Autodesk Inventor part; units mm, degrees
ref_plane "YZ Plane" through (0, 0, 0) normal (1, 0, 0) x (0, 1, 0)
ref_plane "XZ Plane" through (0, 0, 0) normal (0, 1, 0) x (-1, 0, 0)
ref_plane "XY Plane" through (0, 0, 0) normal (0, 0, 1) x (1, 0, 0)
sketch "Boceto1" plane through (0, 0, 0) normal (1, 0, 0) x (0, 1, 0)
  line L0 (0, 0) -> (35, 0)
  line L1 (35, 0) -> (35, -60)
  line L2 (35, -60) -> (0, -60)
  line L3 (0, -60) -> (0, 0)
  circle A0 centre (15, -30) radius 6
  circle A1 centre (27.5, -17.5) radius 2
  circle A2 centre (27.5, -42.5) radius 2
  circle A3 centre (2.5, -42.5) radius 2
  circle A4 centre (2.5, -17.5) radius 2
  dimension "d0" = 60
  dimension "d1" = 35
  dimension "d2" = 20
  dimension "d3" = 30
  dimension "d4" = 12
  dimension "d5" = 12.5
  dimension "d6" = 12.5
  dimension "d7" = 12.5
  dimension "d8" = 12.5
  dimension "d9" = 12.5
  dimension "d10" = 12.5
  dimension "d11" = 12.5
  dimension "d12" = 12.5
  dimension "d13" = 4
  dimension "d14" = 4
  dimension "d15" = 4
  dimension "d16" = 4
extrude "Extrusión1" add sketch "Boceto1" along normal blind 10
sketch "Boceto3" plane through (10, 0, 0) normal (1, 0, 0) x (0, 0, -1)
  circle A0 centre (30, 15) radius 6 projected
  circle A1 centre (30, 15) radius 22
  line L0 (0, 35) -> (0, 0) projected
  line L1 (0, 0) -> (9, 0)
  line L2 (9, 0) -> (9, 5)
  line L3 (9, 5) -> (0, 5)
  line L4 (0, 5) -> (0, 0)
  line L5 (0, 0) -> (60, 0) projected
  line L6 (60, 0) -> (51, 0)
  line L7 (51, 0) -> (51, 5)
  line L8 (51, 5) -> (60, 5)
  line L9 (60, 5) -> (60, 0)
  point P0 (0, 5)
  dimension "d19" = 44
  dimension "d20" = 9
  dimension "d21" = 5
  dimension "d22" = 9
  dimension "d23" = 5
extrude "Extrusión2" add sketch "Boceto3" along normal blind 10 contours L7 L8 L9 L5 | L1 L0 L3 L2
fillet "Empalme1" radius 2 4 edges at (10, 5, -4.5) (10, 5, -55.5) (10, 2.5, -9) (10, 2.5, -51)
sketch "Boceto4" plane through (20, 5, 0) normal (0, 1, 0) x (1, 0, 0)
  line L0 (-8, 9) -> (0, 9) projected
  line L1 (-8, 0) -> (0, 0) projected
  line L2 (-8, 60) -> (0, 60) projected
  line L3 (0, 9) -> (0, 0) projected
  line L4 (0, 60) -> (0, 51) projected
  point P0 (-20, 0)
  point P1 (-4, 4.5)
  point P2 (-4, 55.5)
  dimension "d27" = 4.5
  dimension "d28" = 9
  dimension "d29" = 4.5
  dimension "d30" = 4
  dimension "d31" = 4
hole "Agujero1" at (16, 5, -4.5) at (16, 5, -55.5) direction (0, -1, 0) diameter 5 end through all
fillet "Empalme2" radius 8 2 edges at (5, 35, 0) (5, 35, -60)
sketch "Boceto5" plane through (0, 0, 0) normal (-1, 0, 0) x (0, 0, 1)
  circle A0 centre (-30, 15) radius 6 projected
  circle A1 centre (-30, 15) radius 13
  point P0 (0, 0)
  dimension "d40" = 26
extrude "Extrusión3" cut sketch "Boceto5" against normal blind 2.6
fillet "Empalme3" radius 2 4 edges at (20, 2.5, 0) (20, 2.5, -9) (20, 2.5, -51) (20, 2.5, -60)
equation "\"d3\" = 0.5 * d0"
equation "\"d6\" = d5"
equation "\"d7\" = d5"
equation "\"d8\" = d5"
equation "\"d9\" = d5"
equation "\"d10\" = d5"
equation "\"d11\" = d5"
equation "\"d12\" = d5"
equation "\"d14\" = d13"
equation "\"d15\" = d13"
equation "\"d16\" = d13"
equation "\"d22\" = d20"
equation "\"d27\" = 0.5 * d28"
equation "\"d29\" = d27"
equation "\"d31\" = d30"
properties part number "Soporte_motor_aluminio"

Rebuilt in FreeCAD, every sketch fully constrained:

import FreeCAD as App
import Part
import Sketcher
from FreeCAD import Vector


def edges_at(feature, points):
    """Names of the edges that pass closest to the given points."""
    edges = feature.Shape.Edges
    near = lambda p: min(range(len(edges)), key=lambda i: edges[i].distToShape(Part.Vertex(*p))[0])
    return sorted({f"Edge{near(p) + 1}" for p in points})


def add_polygon(sketch, points):
    """Adds a closed chain of lines whose ends are joined by coincident constraints."""
    first, n = sketch.GeometryCount, len(points)
    for a, b in zip(points, points[1:] + points[:1]):
        sketch.addGeometry(Part.LineSegment(App.Vector(*a, 0), App.Vector(*b, 0)), False)
    for i in range(n):
        sketch.addConstraint(Sketcher.Constraint("Coincident", first + i, 2, first + (i + 1) % n, 1))

doc = App.newDocument("Part")
body = doc.addObject("PartDesign::Body", "Body")

sketch1 = body.newObject("Sketcher::SketchObject", "Sketch")
sketch1.AttachmentSupport = (doc.getObject("YZ_Plane"), [""])
sketch1.MapMode = "FlatFace"
add_polygon(sketch1, [(35, 0), (0, 0), (0, -60), (35, -60)])
sketch1.addGeometry(Part.Circle(Vector(2.5, -42.5, 0), Vector(0, 0, 1), 2), False)
sketch1.addGeometry(Part.Circle(Vector(27.5, -42.5, 0), Vector(0, 0, 1), 2), False)
sketch1.addGeometry(Part.Circle(Vector(2.5, -17.5, 0), Vector(0, 0, 1), 2), False)
sketch1.addGeometry(Part.Circle(Vector(15, -30, 0), Vector(0, 0, 1), 6), False)
sketch1.addGeometry(Part.Circle(Vector(27.5, -17.5, 0), Vector(0, 0, 1), 2), False)
sketch1.addConstraint(Sketcher.Constraint("Horizontal", 0))
sketch1.addConstraint(Sketcher.Constraint("Vertical", 1))
sketch1.addConstraint(Sketcher.Constraint("Horizontal", 2))
sketch1.addConstraint(Sketcher.Constraint("Vertical", 3))
sketch1.addConstraint(Sketcher.Constraint("Coincident", 0, 2, -1, 1))
sketch1.addConstraint(Sketcher.Constraint("Equal", 4, 5))
sketch1.addConstraint(Sketcher.Constraint("Equal", 5, 6))
sketch1.addConstraint(Sketcher.Constraint("Equal", 6, 8))
sketch1.addConstraint(Sketcher.Constraint("Horizontal", 4, 3, 5, 3))
sketch1.addConstraint(Sketcher.Constraint("Horizontal", 6, 3, 8, 3))
sketch1.addConstraint(Sketcher.Constraint("Vertical", 4, 3, 6, 3))
sketch1.addConstraint(Sketcher.Constraint("Vertical", 5, 3, 8, 3))
sketch1.addConstraint(Sketcher.Constraint("Diameter", 4, 4.0))
sketch1.addConstraint(Sketcher.Constraint("Diameter", 7, 12.0))
sketch1.addConstraint(Sketcher.Constraint("DistanceX", 0, 2, 0, 1, 35.0))
sketch1.addConstraint(Sketcher.Constraint("DistanceY", 1, 2, 1, 1, 60.0))
sketch1.addConstraint(Sketcher.Constraint("DistanceY", 7, 3, -1, 1, 30.0))
sketch1.addConstraint(Sketcher.Constraint("DistanceX", 7, 3, 2, 2, 20.0))
sketch1.addConstraint(Sketcher.Constraint("DistanceX", 4, 3, 7, 3, 12.5))
sketch1.addConstraint(Sketcher.Constraint("DistanceY", 4, 3, 7, 3, 12.5))
sketch1.addConstraint(Sketcher.Constraint("DistanceX", 7, 3, 5, 3, 12.5))
sketch1.addConstraint(Sketcher.Constraint("DistanceY", 7, 3, 6, 3, 12.5))
pad1 = body.newObject("PartDesign::Pad", "Pad")
pad1.Profile = sketch1
pad1.Length = 10

sketch2 = body.newObject("Sketcher::SketchObject", "Sketch001")
sketch2.AttachmentSupport = (doc.getObject("YZ_Plane"), [""])
sketch2.MapMode = "FlatFace"
sketch2.AttachmentOffset = App.Placement(Vector(0, 0, 10), App.Rotation())
add_polygon(sketch2, [(5, -51), (0, -51), (0, -60), (5, -60)])
add_polygon(sketch2, [(0, 0), (0, -9), (5, -9), (5, 0)])
sketch2.addConstraint(Sketcher.Constraint("Horizontal", 0))
sketch2.addConstraint(Sketcher.Constraint("Vertical", 1))
sketch2.addConstraint(Sketcher.Constraint("Horizontal", 2))
sketch2.addConstraint(Sketcher.Constraint("Vertical", 3))
sketch2.addConstraint(Sketcher.Constraint("Vertical", 4))
sketch2.addConstraint(Sketcher.Constraint("Horizontal", 5))
sketch2.addConstraint(Sketcher.Constraint("Vertical", 6))
sketch2.addConstraint(Sketcher.Constraint("Horizontal", 7))
sketch2.addConstraint(Sketcher.Constraint("Coincident", 7, 2, -1, 1))
sketch2.addConstraint(Sketcher.Constraint("PointOnObject", 0, 2, -2))
sketch2.addConstraint(Sketcher.Constraint("Vertical", 3, 2, 5, 2))
sketch2.addConstraint(Sketcher.Constraint("Equal", 3, 4))
sketch2.addConstraint(Sketcher.Constraint("DistanceX", 0, 2, 0, 1, 5.0))
sketch2.addConstraint(Sketcher.Constraint("DistanceY", 1, 2, 1, 1, 9.0))
sketch2.addConstraint(Sketcher.Constraint("DistanceY", 0, 2, -1, 1, 51.0))
pad2 = body.newObject("PartDesign::Pad", "Pad001")
pad2.Profile = sketch2
pad2.Length = 10
doc.recompute()

fillet = body.newObject("PartDesign::Fillet", "Fillet")
fillet.Base = (pad2, edges_at(pad2, [
    (10, 5, -4.5),
    (10, 5, -55.5),
    (10, 2.5, -9),
    (10, 2.5, -51),
]))
fillet.Radius = 2

sketch3 = body.newObject("Sketcher::SketchObject", "Sketch002")
sketch3.AttachmentSupport = (doc.getObject("XZ_Plane"), [""])
sketch3.MapMode = "FlatFace"
sketch3.AttachmentOffset = App.Placement(Vector(0, 0, -5), App.Rotation())
sketch3.addGeometry(Part.Circle(Vector(16, -4.5, 0), Vector(0, 0, 1), 2.5), False)
sketch3.addGeometry(Part.Circle(Vector(16, -55.5, 0), Vector(0, 0, 1), 2.5), False)
sketch3.addConstraint(Sketcher.Constraint("Equal", 0, 1))
sketch3.addConstraint(Sketcher.Constraint("Vertical", 0, 3, 1, 3))
sketch3.addConstraint(Sketcher.Constraint("Diameter", 0, 5.0))
sketch3.addConstraint(Sketcher.Constraint("DistanceX", -1, 1, 0, 3, 16.0))
sketch3.addConstraint(Sketcher.Constraint("DistanceY", 1, 3, 0, 3, 51.0))
sketch3.addConstraint(Sketcher.Constraint("DistanceY", 0, 3, -1, 1, 4.5))
doc.recompute()
hole = body.newObject("PartDesign::Hole", "Hole")
hole.Profile = sketch3
hole.ThreadType = "None"
hole.Diameter = 5
hole.DepthType = "ThroughAll"
hole.Reversed = True
doc.recompute()

fillet2 = body.newObject("PartDesign::Fillet", "Fillet001")
fillet2.Base = (hole, edges_at(hole, [(5, 35, 0), (5, 35, -60)]))
fillet2.Radius = 8

sketch4 = body.newObject("Sketcher::SketchObject", "Sketch003")
sketch4.AttachmentSupport = (doc.getObject("YZ_Plane"), [""])
sketch4.MapMode = "FlatFace"
sketch4.addGeometry(Part.Circle(Vector(15, -30, 0), Vector(0, 0, 1), 13), False)
sketch4.addGeometry(Part.Circle(Vector(15, -30, 0), Vector(0, 0, 1), 6), False)
sketch4.addConstraint(Sketcher.Constraint("Coincident", 1, 3, 0, 3))
sketch4.addConstraint(Sketcher.Constraint("Diameter", 0, 26.0))
sketch4.addConstraint(Sketcher.Constraint("Diameter", 1, 12.0))
sketch4.addConstraint(Sketcher.Constraint("DistanceX", -1, 1, 0, 3, 15.0))
sketch4.addConstraint(Sketcher.Constraint("DistanceY", 0, 3, -1, 1, 30.0))
pocket1 = body.newObject("PartDesign::Pocket", "Pocket")
pocket1.Profile = sketch4
pocket1.Length = 2.6
pocket1.Reversed = True
doc.recompute()

fillet3 = body.newObject("PartDesign::Fillet", "Fillet002")
fillet3.Base = (pocket1, edges_at(pocket1, [
    (20, 2.5, 0),
    (20, 2.5, -9),
    (20, 2.5, -51),
    (20, 2.5, -60),
]))
fillet3.Radius = 2

doc.recompute()
